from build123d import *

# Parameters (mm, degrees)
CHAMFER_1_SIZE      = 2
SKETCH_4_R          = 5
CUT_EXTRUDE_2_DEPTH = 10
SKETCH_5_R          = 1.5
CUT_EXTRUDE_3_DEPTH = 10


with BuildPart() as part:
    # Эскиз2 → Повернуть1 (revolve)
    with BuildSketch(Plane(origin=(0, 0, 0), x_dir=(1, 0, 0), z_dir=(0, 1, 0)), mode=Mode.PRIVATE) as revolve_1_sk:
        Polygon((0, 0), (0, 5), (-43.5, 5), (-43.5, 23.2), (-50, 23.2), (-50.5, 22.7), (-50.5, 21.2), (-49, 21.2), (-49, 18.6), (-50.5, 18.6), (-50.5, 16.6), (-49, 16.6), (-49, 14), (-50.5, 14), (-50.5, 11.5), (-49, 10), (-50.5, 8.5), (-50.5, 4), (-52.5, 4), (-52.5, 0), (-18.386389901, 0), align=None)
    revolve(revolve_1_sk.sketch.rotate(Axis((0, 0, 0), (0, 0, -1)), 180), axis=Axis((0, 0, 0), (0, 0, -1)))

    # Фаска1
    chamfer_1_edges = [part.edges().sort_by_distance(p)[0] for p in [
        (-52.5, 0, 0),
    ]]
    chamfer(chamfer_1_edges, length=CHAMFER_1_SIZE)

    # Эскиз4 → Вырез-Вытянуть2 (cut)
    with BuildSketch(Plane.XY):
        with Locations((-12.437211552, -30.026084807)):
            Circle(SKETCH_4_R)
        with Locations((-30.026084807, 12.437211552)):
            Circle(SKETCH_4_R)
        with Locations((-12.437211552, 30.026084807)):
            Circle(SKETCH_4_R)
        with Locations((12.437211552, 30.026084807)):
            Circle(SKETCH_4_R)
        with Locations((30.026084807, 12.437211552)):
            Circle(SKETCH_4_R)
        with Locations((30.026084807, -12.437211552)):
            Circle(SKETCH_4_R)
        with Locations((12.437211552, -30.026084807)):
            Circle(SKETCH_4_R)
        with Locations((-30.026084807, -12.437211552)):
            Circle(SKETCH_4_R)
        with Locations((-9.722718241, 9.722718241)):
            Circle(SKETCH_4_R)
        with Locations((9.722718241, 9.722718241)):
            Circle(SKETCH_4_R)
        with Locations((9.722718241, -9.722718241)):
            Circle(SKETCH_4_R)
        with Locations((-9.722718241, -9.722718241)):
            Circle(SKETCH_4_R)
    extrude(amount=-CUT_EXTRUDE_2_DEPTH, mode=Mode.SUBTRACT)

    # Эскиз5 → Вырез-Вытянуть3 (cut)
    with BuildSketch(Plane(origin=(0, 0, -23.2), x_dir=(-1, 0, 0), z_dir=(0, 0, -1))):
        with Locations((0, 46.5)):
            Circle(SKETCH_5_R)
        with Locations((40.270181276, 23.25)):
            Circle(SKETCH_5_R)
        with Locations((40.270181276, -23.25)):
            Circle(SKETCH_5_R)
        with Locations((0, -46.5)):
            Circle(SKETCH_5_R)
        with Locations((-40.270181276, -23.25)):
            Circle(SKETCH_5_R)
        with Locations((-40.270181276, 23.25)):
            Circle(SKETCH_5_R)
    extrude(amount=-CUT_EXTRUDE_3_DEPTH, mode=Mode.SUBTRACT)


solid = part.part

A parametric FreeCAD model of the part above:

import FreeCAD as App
import Part
import Sketcher

V = App.Vector
Q = App.Units.Quantity


def edges_at(feature, points):
    """Names of the edges that pass closest to the given points."""
    edges = feature.Shape.Edges
    near = lambda p: min(range(len(edges)), key=lambda i: edges[i].distToShape(Part.Vertex(*p))[0])
    return sorted({f"Edge{near(p) + 1}" for p in points})

doc = App.newDocument("Part")
params = doc.addObject("Spreadsheet::Sheet", "Params")
for row, (alias, value) in enumerate([
    ("sketch1_width", "2 mm"),
    ("sketch1_height", "5 mm"),
    ("sketch1_height2", "4 mm"),
    ("sketch1_width2", "43.5 mm"),
    ("sketch1_width3", "6.5 mm"),
    ("revolution_angle", "360 deg"),
    ("chamfer_size", "2 mm"),
    ("sketch2_diameter", "10 mm"),
    ("pocket1_length", "10 mm"),
    ("sketch3_diameter", "3 mm"),
    ("pocket2_length", "10 mm"),
], start=1):
    params.set(f"A{row}", alias)
    params.set(f"B{row}", "=" + value)
    params.setAlias(f"B{row}", alias)

body = doc.addObject("PartDesign::Body", "Body")

# Sketch on XZ plane
sketch1 = body.newObject("Sketcher::SketchObject", "Sketch")
sketch1.AttachmentSupport = (doc.getObject("XZ_Plane"), [""])
sketch1.MapMode = "FlatFace"
sketch1.addGeometry([
    Part.LineSegment(V(0, 0, 0), V(0, -5, 0)),  # 0
    Part.LineSegment(V(0, -5, 0), V(-43.5, -5, 0)),  # 1
    Part.LineSegment(V(-43.5, -5, 0), V(-43.5, -23.2, 0)),  # 2
    Part.LineSegment(V(-43.5, -23.2, 0), V(-50, -23.2, 0)),  # 3
    Part.LineSegment(V(-50, -23.2, 0), V(-50.5, -22.7, 0)),  # 4
    Part.LineSegment(V(-50.5, -22.7, 0), V(-50.5, -21.2, 0)),  # 5
    Part.LineSegment(V(-50.5, -21.2, 0), V(-49, -21.2, 0)),  # 6
    Part.LineSegment(V(-49, -21.2, 0), V(-49, -18.6, 0)),  # 7
    Part.LineSegment(V(-49, -18.6, 0), V(-50.5, -18.6, 0)),  # 8
    Part.LineSegment(V(-50.5, -18.6, 0), V(-50.5, -16.6, 0)),  # 9
    Part.LineSegment(V(-50.5, -16.6, 0), V(-49, -16.6, 0)),  # 10
    Part.LineSegment(V(-49, -16.6, 0), V(-49, -14, 0)),  # 11
    Part.LineSegment(V(-49, -14, 0), V(-50.5, -14, 0)),  # 12
    Part.LineSegment(V(-50.5, -14, 0), V(-50.5, -11.5, 0)),  # 13
    Part.LineSegment(V(-50.5, -11.5, 0), V(-49, -10, 0)),  # 14
    Part.LineSegment(V(-49, -10, 0), V(-50.5, -8.5, 0)),  # 15
    Part.LineSegment(V(-50.5, -8.5, 0), V(-50.5, -4, 0)),  # 16
    Part.LineSegment(V(-50.5, -4, 0), V(-52.5, -4, 0)),  # 17
    Part.LineSegment(V(-52.5, -4, 0), V(-52.5, 0, 0)),  # 18
    Part.LineSegment(V(-52.5, 0, 0), V(0, 0, 0)),  # 19
], False)
sketch1.addConstraint([
    Sketcher.Constraint("Coincident", 0, 2, 1, 1),
    Sketcher.Constraint("Coincident", 1, 2, 2, 1),
    Sketcher.Constraint("Coincident", 2, 2, 3, 1),
    Sketcher.Constraint("Coincident", 3, 2, 4, 1),
    Sketcher.Constraint("Coincident", 4, 2, 5, 1),
    Sketcher.Constraint("Coincident", 5, 2, 6, 1),
    Sketcher.Constraint("Coincident", 6, 2, 7, 1),
    Sketcher.Constraint("Coincident", 7, 2, 8, 1),
    Sketcher.Constraint("Coincident", 8, 2, 9, 1),
    Sketcher.Constraint("Coincident", 9, 2, 10, 1),
    Sketcher.Constraint("Coincident", 10, 2, 11, 1),
    Sketcher.Constraint("Coincident", 11, 2, 12, 1),
    Sketcher.Constraint("Coincident", 12, 2, 13, 1),
    Sketcher.Constraint("Coincident", 13, 2, 14, 1),
    Sketcher.Constraint("Coincident", 14, 2, 15, 1),
    Sketcher.Constraint("Coincident", 15, 2, 16, 1),
    Sketcher.Constraint("Coincident", 16, 2, 17, 1),
    Sketcher.Constraint("Coincident", 17, 2, 18, 1),
    Sketcher.Constraint("Coincident", 18, 2, 19, 1),
    Sketcher.Constraint("Coincident", 19, 2, 0, 1),
    Sketcher.Constraint("Vertical", 0),
    Sketcher.Constraint("Horizontal", 1),
    Sketcher.Constraint("Vertical", 2),
    Sketcher.Constraint("Horizontal", 3),
    Sketcher.Constraint("Vertical", 5),
    Sketcher.Constraint("Horizontal", 6),
    Sketcher.Constraint("Vertical", 7),
    Sketcher.Constraint("Horizontal", 8),
    Sketcher.Constraint("Vertical", 9),
    Sketcher.Constraint("Horizontal", 10),
    Sketcher.Constraint("Vertical", 11),
    Sketcher.Constraint("Horizontal", 12),
    Sketcher.Constraint("Vertical", 13),
    Sketcher.Constraint("Vertical", 16),
    Sketcher.Constraint("Horizontal", 17),
    Sketcher.Constraint("Vertical", 18),
    Sketcher.Constraint("Horizontal", 19),
    Sketcher.Constraint("Coincident", 19, 2, -1, 1),
    Sketcher.Constraint("Perpendicular", 4, 14),
    Sketcher.Constraint("Perpendicular", 14, 15),
    Sketcher.Constraint("Vertical", 5, 2, 8, 2),
    Sketcher.Constraint("Vertical", 7, 2, 10, 2),
    Sketcher.Constraint("Vertical", 9, 2, 12, 2),
    Sketcher.Constraint("Vertical", 11, 2, 14, 2),
    Sketcher.Constraint("Vertical", 13, 2, 15, 2),
    Sketcher.Constraint("Equal", 12, 5),
    Sketcher.Constraint("Equal", 17, 9),
    Sketcher.Constraint("Equal", 7, 11),
    Sketcher.Constraint("Equal", 14, 15),
    Sketcher.Constraint("DistanceX", 17, 2, 17, 1, Q("2 mm")),
    Sketcher.Constraint("DistanceY", 0, 2, 0, 1, Q("5 mm")),
    Sketcher.Constraint("DistanceY", 18, 1, 18, 2, Q("4 mm")),
    Sketcher.Constraint("DistanceX", 1, 2, 1, 1, Q("43.5 mm")),
    Sketcher.Constraint("DistanceX", 3, 2, 3, 1, Q("6.5 mm")),
    Sketcher.Constraint("DistanceX", 6, 1, 6, 2, Q("1.5 mm")),
    Sketcher.Constraint("DistanceX", 19, 1, 19, 2, Q("52.5 mm")),
    Sketcher.Constraint("DistanceY", 2, 2, 2, 1, Q("18.2 mm")),
    Sketcher.Constraint("DistanceY", 7, 1, 7, 2, Q("2.6 mm")),
    Sketcher.Constraint("DistanceY", 13, 1, 13, 2, Q("2.5 mm")),
])
sketch1.setExpression("Constraints[49]", "Params.sketch1_width")
sketch1.setExpression("Constraints[50]", "Params.sketch1_height")
sketch1.setExpression("Constraints[51]", "Params.sketch1_height2")
sketch1.setExpression("Constraints[52]", "Params.sketch1_width2")
sketch1.setExpression("Constraints[53]", "Params.sketch1_width3")
revolution = body.newObject("PartDesign::Revolution", "Revolution")
revolution.Profile = sketch1
revolution.ReferenceAxis = (sketch1, ["V_Axis"])
revolution.setExpression("Angle", "Params.revolution_angle")
doc.recompute()

chamfer = body.newObject("PartDesign::Chamfer", "Chamfer")
chamfer.Base = (revolution, edges_at(revolution, [(-52.5, 0, 0)]))
chamfer.setExpression("Size", "Params.chamfer_size")

# Sketch on XY plane
sketch2 = body.newObject("Sketcher::SketchObject", "Sketch001")
sketch2.AttachmentSupport = (doc.getObject("XY_Plane"), [""])
sketch2.MapMode = "FlatFace"
sketch2.addGeometry([
    Part.Circle(V(-12, -30, 0), V(0, 0, 1), 5),  # 0
    Part.Circle(V(-30, 12, 0), V(0, 0, 1), 5),  # 1
    Part.Circle(V(-12, 30, 0), V(0, 0, 1), 5),  # 2
    Part.Circle(V(12, 30, 0), V(0, 0, 1), 5),  # 3
    Part.Circle(V(30, 12, 0), V(0, 0, 1), 5),  # 4
    Part.Circle(V(30, -12, 0), V(0, 0, 1), 5),  # 5
    Part.Circle(V(12, -30, 0), V(0, 0, 1), 5),  # 6
    Part.Circle(V(-30, -12, 0), V(0, 0, 1), 5),  # 7
    Part.Circle(V(-10, 10, 0), V(0, 0, 1), 5),  # 8
    Part.Circle(V(10, 10, 0), V(0, 0, 1), 5),  # 9
    Part.Circle(V(10, -10, 0), V(0, 0, 1), 5),  # 10
    Part.Circle(V(-10, -10, 0), V(0, 0, 1), 5),  # 11
], False)
sketch2.addConstraint([
    Sketcher.Constraint("Equal", 0, 1),
    Sketcher.Constraint("Equal", 1, 2),
    Sketcher.Constraint("Equal", 2, 3),
    Sketcher.Constraint("Equal", 3, 4),
    Sketcher.Constraint("Equal", 4, 5),
    Sketcher.Constraint("Equal", 5, 6),
    Sketcher.Constraint("Equal", 6, 7),
    Sketcher.Constraint("Equal", 7, 8),
    Sketcher.Constraint("Equal", 8, 9),
    Sketcher.Constraint("Equal", 9, 10),
    Sketcher.Constraint("Equal", 10, 11),
    Sketcher.Constraint("Symmetric", 0, 3, 3, 3, -1, 1),
    Sketcher.Constraint("Symmetric", 1, 3, 5, 3, -1, 1),
    Sketcher.Constraint("Symmetric", 2, 3, 6, 3, -1, 1),
    Sketcher.Constraint("Symmetric", 4, 3, 7, 3, -1, 1),
    Sketcher.Constraint("Symmetric", 8, 3, 10, 3, -1, 1),
    Sketcher.Constraint("Symmetric", 9, 3, 11, 3, -1, 1),
    Sketcher.Constraint("Symmetric", 2, 3, 3, 3, -2),
    Sketcher.Constraint("Symmetric", 1, 3, 4, 3, -2),
    Sketcher.Constraint("Symmetric", 8, 3, 9, 3, -2),
    Sketcher.Constraint("Diameter", 0, Q("10 mm")),
    Sketcher.Constraint("DistanceX", 0, 3, -1, 1, Q("12.437212 mm")),
    Sketcher.Constraint("DistanceY", -1, 1, 1, 3, Q("12.437212 mm")),
    Sketcher.Constraint("DistanceX", 8, 3, -1, 1, Q("9.722718 mm")),
    Sketcher.Constraint("DistanceY", -1, 1, 8, 3, Q("9.722718 mm")),
    Sketcher.Constraint("DistanceY", 0, 3, 2, 3, Q("60.05217 mm")),
    Sketcher.Constraint("DistanceX", 1, 3, 4, 3, Q("60.05217 mm")),
])
sketch2.setExpression("Constraints[20]", "Params.sketch2_diameter")
pocket1 = body.newObject("PartDesign::Pocket", "Pocket")
pocket1.Profile = sketch2
pocket1.setExpression("Length", "Params.pocket1_length")

# Sketch on XY plane
sketch3 = body.newObject("Sketcher::SketchObject", "Sketch002")
sketch3.AttachmentSupport = (doc.getObject("XY_Plane"), [""])
sketch3.MapMode = "FlatFace"
sketch3.AttachmentOffset = App.Placement(V(0, 0, -23.2), App.Rotation())
sketch3.addGeometry([
    Part.Circle(V(0, 46.5, 0), V(0, 0, 1), 1.5),  # 0
    Part.Circle(V(-40.3, 23.2, 0), V(0, 0, 1), 1.5),  # 1
    Part.Circle(V(-40.3, -23.2, 0), V(0, 0, 1), 1.5),  # 2
    Part.Circle(V(0, -46.5, 0), V(0, 0, 1), 1.5),  # 3
    Part.Circle(V(40.3, -23.2, 0), V(0, 0, 1), 1.5),  # 4
    Part.Circle(V(40.3, 23.2, 0), V(0, 0, 1), 1.5),  # 5
], False)
sketch3.addConstraint([
    Sketcher.Constraint("Equal", 0, 1),
    Sketcher.Constraint("Equal", 1, 2),
    Sketcher.Constraint("Equal", 2, 3),
    Sketcher.Constraint("Equal", 3, 4),
    Sketcher.Constraint("Equal", 4, 5),
    Sketcher.Constraint("Symmetric", 0, 3, 3, 3, -1, 1),
    Sketcher.Constraint("Symmetric", 1, 3, 4, 3, -1, 1),
    Sketcher.Constraint("Symmetric", 2, 3, 5, 3, -1, 1),
    Sketcher.Constraint("Symmetric", 2, 3, 4, 3, -2),
    Sketcher.Constraint("PointOnObject", 0, 3, -2),
    Sketcher.Constraint("Diameter", 0, Q("3 mm")),
    Sketcher.Constraint("DistanceY", 3, 3, 0, 3, Q("93 mm")),
    Sketcher.Constraint("DistanceY", 2, 3, 1, 3, Q("46.5 mm")),
    Sketcher.Constraint("DistanceX", 1, 3, -1, 1, Q("40.270181 mm")),
])
sketch3.setExpression("Constraints[10]", "Params.sketch3_diameter")
pocket2 = body.newObject("PartDesign::Pocket", "Pocket001")
pocket2.Profile = sketch3
pocket2.setExpression("Length", "Params.pocket2_length")
pocket2.Reversed = True

doc.recompute()
